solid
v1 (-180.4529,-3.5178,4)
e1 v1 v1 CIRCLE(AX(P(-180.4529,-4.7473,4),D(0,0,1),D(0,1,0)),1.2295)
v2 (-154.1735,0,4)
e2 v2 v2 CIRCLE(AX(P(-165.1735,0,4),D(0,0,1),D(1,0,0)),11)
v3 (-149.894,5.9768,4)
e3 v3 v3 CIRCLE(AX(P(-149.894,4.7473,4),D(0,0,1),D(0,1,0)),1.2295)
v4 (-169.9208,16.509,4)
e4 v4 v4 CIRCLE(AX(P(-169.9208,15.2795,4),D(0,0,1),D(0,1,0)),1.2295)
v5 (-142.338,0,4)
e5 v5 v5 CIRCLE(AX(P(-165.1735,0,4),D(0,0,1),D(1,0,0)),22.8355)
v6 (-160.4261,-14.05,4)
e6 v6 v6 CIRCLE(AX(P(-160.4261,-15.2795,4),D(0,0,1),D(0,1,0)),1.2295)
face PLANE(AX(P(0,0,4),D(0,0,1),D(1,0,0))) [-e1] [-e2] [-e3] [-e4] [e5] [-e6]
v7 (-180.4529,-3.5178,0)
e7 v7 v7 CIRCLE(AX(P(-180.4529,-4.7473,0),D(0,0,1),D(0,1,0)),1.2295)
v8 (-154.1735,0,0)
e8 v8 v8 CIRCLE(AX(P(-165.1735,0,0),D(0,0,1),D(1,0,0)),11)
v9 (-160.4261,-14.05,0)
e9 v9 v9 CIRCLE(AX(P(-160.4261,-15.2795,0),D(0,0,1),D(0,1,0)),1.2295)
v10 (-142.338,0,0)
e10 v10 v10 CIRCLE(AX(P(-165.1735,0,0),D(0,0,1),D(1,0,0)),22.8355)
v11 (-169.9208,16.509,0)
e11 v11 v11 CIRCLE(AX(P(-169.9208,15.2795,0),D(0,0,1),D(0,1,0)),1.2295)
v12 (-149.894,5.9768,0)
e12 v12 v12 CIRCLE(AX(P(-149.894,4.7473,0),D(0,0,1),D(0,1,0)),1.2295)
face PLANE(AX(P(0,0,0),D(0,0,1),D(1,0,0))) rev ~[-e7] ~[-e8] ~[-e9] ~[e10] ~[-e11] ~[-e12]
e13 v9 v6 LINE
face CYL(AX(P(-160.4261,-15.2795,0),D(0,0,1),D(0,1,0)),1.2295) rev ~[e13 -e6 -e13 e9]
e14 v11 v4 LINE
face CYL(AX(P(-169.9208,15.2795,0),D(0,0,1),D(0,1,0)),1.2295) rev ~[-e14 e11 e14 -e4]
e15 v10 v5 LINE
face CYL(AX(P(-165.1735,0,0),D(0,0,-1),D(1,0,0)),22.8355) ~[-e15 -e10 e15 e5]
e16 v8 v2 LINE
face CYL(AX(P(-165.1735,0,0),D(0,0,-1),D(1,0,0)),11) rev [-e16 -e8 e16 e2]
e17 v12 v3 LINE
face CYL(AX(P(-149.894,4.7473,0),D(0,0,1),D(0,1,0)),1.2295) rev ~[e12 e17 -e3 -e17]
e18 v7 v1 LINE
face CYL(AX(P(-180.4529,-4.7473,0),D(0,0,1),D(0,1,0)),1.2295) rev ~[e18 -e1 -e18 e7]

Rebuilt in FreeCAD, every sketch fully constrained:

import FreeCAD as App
import Part
import Sketcher
from FreeCAD import Vector

doc = App.newDocument("Part")
body = doc.addObject("PartDesign::Body", "Body")

# Sketch on XY plane
sketch1 = body.newObject("Sketcher::SketchObject", "Sketch")
sketch1.AttachmentSupport = (doc.getObject("XY_Plane"), [""])
sketch1.MapMode = "FlatFace"
sketch1.addGeometry([
    Part.Circle(Vector(-165, 0, 0), Vector(0, 0, 1), 23),
    Part.Circle(Vector(-165, 0, 0), Vector(0, 0, 1), 11),
], False)
sketch1.addConstraint([
    Sketcher.Constraint("Coincident", 1, 3, 0, 3),
    Sketcher.Constraint("PointOnObject", 0, 3, -1),
    Sketcher.Constraint("Diameter", 1, 22.0),
    Sketcher.Constraint("Diameter", 0, 45.671),
    Sketcher.Constraint("DistanceX", 0, 3, -1, 1, 165.1735),
])
pad1 = body.newObject("PartDesign::Pad", "Pad")
pad1.Profile = sketch1
pad1.Length = 4

# Sketch on XY plane
sketch2 = body.newObject("Sketcher::SketchObject", "Sketch001")
sketch2.AttachmentSupport = (doc.getObject("XY_Plane"), [""])
sketch2.MapMode = "FlatFace"
sketch2.addGeometry([
    Part.Circle(Vector(-149.9, 4.7, 0), Vector(0, 0, 1), 1.2),
    Part.Circle(Vector(-169.9, 15.3, 0), Vector(0, 0, 1), 1.2),
    Part.Circle(Vector(-180.5, -4.7, 0), Vector(0, 0, 1), 1.2),
    Part.Circle(Vector(-160.4, -15.3, 0), Vector(0, 0, 1), 1.2),
], False)
sketch2.addConstraint([
    Sketcher.Constraint("Equal", 0, 1),
    Sketcher.Constraint("Equal", 1, 2),
    Sketcher.Constraint("Equal", 2, 3),
    Sketcher.Constraint("Diameter", 0, 2.459),
    Sketcher.Constraint("DistanceX", 0, 3, -1, 1, 149.894),
    Sketcher.Constraint("DistanceX", 2, 3, -1, 1, 180.453),
    Sketcher.Constraint("DistanceX", 3, 3, -1, 1, 160.426),
    Sketcher.Constraint("DistanceX", 2, 3, 1, 3, 10.532),
    Sketcher.Constraint("DistanceY", 3, 3, 1, 3, 30.559),
    Sketcher.Constraint("DistanceY", -1, 1, 0, 3, 4.7473),
    Sketcher.Constraint("DistanceY", -1, 1, 1, 3, 15.2795),
    Sketcher.Constraint("DistanceY", 2, 3, -1, 1, 4.7473),
])
doc.recompute()
hole = body.newObject("PartDesign::Hole", "Hole")
hole.Profile = sketch2
hole.ThreadType = "None"
hole.Diameter = 2.459
hole.DepthType = "ThroughAll"
hole.Reversed = True

doc.recompute()
